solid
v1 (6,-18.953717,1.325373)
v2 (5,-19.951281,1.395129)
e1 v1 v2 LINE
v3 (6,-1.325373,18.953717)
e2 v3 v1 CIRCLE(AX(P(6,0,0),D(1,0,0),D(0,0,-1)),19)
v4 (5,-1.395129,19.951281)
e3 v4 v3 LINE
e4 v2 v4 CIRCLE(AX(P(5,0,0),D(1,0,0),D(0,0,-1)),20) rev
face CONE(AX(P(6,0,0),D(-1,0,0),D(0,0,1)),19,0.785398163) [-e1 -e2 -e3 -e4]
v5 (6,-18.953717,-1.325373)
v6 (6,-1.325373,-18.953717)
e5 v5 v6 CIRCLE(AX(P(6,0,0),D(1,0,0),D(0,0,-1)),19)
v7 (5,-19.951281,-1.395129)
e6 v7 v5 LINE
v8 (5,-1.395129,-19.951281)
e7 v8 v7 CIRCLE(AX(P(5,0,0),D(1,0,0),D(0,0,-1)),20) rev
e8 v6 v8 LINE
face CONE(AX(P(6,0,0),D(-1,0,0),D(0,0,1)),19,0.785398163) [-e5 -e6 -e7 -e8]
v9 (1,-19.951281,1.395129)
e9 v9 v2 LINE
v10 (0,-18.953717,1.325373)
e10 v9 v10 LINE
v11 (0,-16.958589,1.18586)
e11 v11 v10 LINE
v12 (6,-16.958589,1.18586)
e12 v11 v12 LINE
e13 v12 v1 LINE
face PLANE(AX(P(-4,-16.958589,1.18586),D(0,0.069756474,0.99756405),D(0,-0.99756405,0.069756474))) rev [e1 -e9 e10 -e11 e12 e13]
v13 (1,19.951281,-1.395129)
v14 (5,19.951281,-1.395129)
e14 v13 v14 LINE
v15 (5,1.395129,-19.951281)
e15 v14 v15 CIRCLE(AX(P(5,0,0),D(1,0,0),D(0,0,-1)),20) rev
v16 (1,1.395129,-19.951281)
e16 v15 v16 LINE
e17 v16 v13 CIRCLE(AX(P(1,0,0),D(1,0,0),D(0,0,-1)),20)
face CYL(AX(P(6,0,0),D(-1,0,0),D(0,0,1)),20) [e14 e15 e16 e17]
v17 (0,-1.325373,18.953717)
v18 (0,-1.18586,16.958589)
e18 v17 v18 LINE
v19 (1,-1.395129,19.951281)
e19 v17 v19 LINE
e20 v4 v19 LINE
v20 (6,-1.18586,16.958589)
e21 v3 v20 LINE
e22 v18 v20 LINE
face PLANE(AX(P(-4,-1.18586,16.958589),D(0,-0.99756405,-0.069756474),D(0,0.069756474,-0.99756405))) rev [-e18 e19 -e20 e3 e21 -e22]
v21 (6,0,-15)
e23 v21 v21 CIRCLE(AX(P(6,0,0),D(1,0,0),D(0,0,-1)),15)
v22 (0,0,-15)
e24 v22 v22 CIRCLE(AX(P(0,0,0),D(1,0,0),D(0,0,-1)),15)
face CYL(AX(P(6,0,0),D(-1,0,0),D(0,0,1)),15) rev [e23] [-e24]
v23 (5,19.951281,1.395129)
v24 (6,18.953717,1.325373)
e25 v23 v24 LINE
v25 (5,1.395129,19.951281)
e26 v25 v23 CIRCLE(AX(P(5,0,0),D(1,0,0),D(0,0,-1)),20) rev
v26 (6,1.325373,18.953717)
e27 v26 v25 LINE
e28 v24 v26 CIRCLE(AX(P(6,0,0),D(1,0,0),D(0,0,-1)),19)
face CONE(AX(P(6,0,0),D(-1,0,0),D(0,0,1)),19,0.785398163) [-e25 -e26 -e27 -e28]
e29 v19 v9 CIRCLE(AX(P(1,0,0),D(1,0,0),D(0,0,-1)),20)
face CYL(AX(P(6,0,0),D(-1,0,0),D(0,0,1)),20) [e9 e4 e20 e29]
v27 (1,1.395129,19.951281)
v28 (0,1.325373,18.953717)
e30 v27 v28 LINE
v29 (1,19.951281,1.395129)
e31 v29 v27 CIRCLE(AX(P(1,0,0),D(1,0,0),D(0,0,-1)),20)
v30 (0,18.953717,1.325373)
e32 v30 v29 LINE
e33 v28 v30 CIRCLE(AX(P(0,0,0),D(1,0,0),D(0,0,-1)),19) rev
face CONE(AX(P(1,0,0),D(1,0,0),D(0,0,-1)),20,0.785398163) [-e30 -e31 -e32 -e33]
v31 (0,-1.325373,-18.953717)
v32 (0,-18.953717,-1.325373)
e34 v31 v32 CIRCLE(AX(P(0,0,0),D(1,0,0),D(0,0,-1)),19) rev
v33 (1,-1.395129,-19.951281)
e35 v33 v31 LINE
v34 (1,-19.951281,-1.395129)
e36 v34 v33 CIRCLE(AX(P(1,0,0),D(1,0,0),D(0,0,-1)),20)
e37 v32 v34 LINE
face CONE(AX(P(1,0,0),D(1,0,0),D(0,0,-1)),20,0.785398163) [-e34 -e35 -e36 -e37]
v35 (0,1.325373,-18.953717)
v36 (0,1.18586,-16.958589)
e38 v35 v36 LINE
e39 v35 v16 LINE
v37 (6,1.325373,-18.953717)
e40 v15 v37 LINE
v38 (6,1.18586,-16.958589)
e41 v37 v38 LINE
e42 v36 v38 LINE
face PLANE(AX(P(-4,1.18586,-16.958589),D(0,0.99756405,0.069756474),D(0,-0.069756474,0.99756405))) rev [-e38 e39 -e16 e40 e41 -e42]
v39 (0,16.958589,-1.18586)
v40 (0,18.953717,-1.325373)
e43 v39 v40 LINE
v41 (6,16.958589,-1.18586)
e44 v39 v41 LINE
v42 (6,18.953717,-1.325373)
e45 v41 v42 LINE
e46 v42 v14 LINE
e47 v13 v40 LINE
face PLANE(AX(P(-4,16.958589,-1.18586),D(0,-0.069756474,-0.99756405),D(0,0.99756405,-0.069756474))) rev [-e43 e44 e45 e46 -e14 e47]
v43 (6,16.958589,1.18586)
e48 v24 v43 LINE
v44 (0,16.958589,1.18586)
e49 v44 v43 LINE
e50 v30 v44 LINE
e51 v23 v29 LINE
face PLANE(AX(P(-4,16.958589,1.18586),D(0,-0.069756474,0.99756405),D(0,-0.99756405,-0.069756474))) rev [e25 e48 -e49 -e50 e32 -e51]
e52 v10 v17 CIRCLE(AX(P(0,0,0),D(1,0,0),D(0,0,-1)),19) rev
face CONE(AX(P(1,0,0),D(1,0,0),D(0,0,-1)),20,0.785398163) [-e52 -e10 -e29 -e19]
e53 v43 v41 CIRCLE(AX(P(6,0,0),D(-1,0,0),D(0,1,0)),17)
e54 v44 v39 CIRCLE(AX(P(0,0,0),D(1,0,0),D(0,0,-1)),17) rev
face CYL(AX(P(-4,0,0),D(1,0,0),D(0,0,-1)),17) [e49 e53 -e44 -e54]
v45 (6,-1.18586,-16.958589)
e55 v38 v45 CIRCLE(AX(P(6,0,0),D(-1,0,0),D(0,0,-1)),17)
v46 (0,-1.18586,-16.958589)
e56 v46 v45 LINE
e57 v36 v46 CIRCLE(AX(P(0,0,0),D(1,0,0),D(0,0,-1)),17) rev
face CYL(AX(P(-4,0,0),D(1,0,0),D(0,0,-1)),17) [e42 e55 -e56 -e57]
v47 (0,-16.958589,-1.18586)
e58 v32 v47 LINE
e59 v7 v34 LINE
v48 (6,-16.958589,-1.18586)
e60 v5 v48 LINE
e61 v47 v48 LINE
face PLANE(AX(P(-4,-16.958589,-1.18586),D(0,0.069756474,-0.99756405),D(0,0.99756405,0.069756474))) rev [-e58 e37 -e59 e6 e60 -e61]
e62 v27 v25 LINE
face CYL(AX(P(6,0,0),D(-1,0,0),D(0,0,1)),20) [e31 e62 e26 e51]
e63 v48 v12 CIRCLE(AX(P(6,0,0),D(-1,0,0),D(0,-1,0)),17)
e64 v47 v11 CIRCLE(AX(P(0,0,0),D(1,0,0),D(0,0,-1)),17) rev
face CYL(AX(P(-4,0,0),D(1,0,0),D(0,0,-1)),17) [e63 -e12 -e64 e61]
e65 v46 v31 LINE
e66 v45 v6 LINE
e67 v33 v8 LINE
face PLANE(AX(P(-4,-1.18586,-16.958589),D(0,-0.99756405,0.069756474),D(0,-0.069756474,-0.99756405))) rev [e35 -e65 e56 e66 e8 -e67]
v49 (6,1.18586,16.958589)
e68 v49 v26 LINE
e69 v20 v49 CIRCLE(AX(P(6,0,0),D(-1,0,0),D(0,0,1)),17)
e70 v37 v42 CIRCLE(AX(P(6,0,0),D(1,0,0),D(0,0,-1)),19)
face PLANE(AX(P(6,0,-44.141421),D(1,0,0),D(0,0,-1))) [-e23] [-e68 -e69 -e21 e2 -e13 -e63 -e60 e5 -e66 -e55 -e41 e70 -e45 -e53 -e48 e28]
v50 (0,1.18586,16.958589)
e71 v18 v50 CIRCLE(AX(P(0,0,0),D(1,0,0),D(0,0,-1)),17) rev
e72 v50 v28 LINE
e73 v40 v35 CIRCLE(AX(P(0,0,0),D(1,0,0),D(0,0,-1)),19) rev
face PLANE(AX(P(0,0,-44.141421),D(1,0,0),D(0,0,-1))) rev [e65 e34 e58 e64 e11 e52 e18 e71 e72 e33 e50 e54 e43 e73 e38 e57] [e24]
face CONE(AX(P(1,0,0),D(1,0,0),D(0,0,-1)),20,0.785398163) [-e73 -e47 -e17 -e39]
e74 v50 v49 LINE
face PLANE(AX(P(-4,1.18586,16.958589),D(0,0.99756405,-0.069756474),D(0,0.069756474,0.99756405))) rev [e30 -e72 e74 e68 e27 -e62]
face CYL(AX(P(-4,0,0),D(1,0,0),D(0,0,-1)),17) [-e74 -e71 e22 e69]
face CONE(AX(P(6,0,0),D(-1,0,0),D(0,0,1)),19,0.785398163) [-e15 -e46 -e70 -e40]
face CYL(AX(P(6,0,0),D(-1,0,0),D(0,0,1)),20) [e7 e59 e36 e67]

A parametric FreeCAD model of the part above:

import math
import FreeCAD as App
import Part
import Sketcher

V = App.Vector
Q = App.Units.Quantity


def edges_at(feature, points):
    """Names of the edges that pass closest to the given points."""
    edges = feature.Shape.Edges
    near = lambda p: min(range(len(edges)), key=lambda i: edges[i].distToShape(Part.Vertex(*p))[0])
    return sorted({f"Edge{near(p) + 1}" for p in points})

doc = App.newDocument("Part")
body = doc.addObject("PartDesign::Body", "Body")

sketch1 = body.newObject("Sketcher::SketchObject", "Sketch")
sketch1.AttachmentSupport = (doc.getObject("YZ_Plane"), [""])
sketch1.MapMode = "FlatFace"
sketch1.addGeometry([
    Part.Circle(V(0, 0, 0), V(0, 0, 1), 20),
    Part.Circle(V(0, 0, 0), V(0, 0, 1), 15),
], False)
sketch1.addConstraint([
    Sketcher.Constraint("Coincident", 0, 3, -1, 1),
    Sketcher.Constraint("Coincident", 1, 3, -1, 1),
    Sketcher.Constraint("Diameter", 0, 40.0),
    Sketcher.Constraint("Diameter", 1, 30.0),
])
pad1 = body.newObject("PartDesign::Pad", "Pad")
pad1.Profile = sketch1
pad1.Length = 6
doc.recompute()

chamfer = body.newObject("PartDesign::Chamfer", "Chamfer")
chamfer.Base = (pad1, edges_at(pad1, [(6, 0, 20), (0, 0, 20)]))
chamfer.Size = 1

sketch2 = body.newObject("Sketcher::SketchObject", "Sketch001")
sketch2.AttachmentSupport = (doc.getObject("YZ_Plane"), [""])
sketch2.MapMode = "FlatFace"
sketch2.AttachmentOffset = App.Placement(V(0, 0, 6), App.Rotation())
sketch2.addGeometry([
    Part.LineSegment(V(-1.2, -17, 0), V(-1.5, -20.7, 0)),
    Part.ArcOfCircle(Part.Circle(V(0, 0, 0), V(0, 0, 1), 20.8), math.radians(-94), math.radians(-86)),
    Part.LineSegment(V(1.5, -20.7, 0), V(1.2, -17, 0)),
    Part.ArcOfCircle(Part.Circle(V(0, 0, 0), V(0, 0, 1), 17), math.radians(-94), math.radians(-86)),
], False)
sketch2.addConstraint([
    Sketcher.Constraint("Coincident", 0, 2, 1, 1),
    Sketcher.Constraint("Coincident", 1, 2, 2, 1),
    Sketcher.Constraint("Coincident", 2, 2, 3, 2),
    Sketcher.Constraint("Coincident", 3, 1, 0, 1),
    Sketcher.Constraint("Coincident", 1, 3, -1, 1),
    Sketcher.Constraint("Coincident", 3, 3, -1, 1),
    Sketcher.Constraint("Horizontal", 0, 2, 1, 2),
    Sketcher.Constraint("Horizontal", 2, 2, 3, 1),
    Sketcher.Constraint("Radius", 3, 17.0),
    Sketcher.Constraint("Angle", 0, Q("-94 deg")),
    Sketcher.Constraint("Radius", 1, 20.798142),
    Sketcher.Constraint("DistanceY", 0, 2, -1, 1, 20.747479),
])
pocket1 = body.newObject("PartDesign::Pocket", "Pocket")
pocket1.Profile = sketch2
pocket1.Length = 10
doc.recompute()

polarpattern = body.newObject("PartDesign::PolarPattern", "PolarPattern")
polarpattern.Originals = [pocket1]
polarpattern.Axis = (doc.getObject("X_Axis"), [""])
polarpattern.Angle = 360
polarpattern.Occurrences = 4
body.Tip = polarpattern

doc.recompute()
